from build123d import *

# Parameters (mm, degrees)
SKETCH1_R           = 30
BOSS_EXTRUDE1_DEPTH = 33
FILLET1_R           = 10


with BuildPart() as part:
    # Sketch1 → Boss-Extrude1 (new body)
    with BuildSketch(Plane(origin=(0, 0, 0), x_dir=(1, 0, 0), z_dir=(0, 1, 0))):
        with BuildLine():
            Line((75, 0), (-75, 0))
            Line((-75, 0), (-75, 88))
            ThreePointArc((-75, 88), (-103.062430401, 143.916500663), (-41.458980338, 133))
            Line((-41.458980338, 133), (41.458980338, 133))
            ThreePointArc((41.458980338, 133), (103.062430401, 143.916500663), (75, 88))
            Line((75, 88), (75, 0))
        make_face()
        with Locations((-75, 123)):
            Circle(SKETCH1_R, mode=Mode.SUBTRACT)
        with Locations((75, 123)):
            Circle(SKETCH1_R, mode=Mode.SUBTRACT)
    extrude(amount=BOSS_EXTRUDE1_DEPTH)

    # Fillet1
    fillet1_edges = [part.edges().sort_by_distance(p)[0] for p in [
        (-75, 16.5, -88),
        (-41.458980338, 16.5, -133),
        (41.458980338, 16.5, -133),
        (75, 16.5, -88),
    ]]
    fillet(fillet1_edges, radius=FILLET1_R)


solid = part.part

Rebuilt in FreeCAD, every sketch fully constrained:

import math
import FreeCAD as App
import Part
import Sketcher
Q = App.Units.Quantity


def edges_at(feature, points):
    """Names of the edges that pass closest to the given points."""
    edges = feature.Shape.Edges
    near = lambda p: min(range(len(edges)), key=lambda i: edges[i].distToShape(Part.Vertex(*p))[0])
    return sorted({f"Edge{near(p) + 1}" for p in points})

doc = App.newDocument("Part")
params = doc.addObject("Spreadsheet::Sheet", "Params")
for row, (alias, value) in enumerate([
    ("sketch1_diameter", "60 mm"),
    ("sketch1_radius", "35 mm"),
    ("sketch1_width", "150 mm"),
    ("sketch1_height", "88 mm"),
    ("pad1_length", "33 mm"),
    ("fillet_radius", "10 mm"),
], start=1):
    params.set(f"A{row}", alias)
    params.set(f"B{row}", "=" + value)
    params.setAlias(f"B{row}", alias)

body = doc.addObject("PartDesign::Body", "Body")

# Sketch on XZ plane
sketch1 = body.newObject("Sketcher::SketchObject", "Sketch")
sketch1.AttachmentSupport = (doc.getObject("XZ_Plane"), [""])
sketch1.MapMode = "FlatFace"
sketch1.addGeometry([
    Part.LineSegment(App.Vector(-75, 0, 0), App.Vector(75, 0, 0)),  # 0
    Part.LineSegment(App.Vector(75, 0, 0), App.Vector(75, -88, 0)),  # 1
    Part.ArcOfCircle(Part.Circle(App.Vector(75, -123, 0), App.Vector(0, 0, 1), 35), math.radians(-163), math.radians(90)),  # 2
    Part.LineSegment(App.Vector(41, -133, 0), App.Vector(-41, -133, 0)),  # 3
    Part.ArcOfCircle(Part.Circle(App.Vector(-75, -123, 0), App.Vector(0, 0, 1), 35), math.radians(90), math.radians(343)),  # 4
    Part.LineSegment(App.Vector(-75, -88, 0), App.Vector(-75, 0, 0)),  # 5
    Part.Circle(App.Vector(75, -123, 0), App.Vector(0, 0, 1), 30),  # 6
    Part.Circle(App.Vector(-75, -123, 0), App.Vector(0, 0, 1), 30),  # 7
], False)
sketch1.addConstraint([
    Sketcher.Constraint("Coincident", 0, 2, 1, 1),
    Sketcher.Constraint("Coincident", 1, 2, 2, 2),
    Sketcher.Constraint("Coincident", 2, 1, 3, 1),
    Sketcher.Constraint("Coincident", 3, 2, 4, 2),
    Sketcher.Constraint("Coincident", 4, 1, 5, 1),
    Sketcher.Constraint("Coincident", 5, 2, 0, 1),
    Sketcher.Constraint("Horizontal", 0),
    Sketcher.Constraint("Vertical", 1),
    Sketcher.Constraint("Horizontal", 3),
    Sketcher.Constraint("Vertical", 5),
    Sketcher.Constraint("Coincident", 6, 3, 2, 3),
    Sketcher.Constraint("Coincident", 7, 3, 4, 3),
    Sketcher.Constraint("Equal", 2, 4),
    Sketcher.Constraint("Equal", 6, 7),
    Sketcher.Constraint("Symmetric", 0, 2, 5, 2, -1, 1),
    Sketcher.Constraint("Symmetric", 2, 3, 4, 3, -2),
    Sketcher.Constraint("Vertical", 6, 3, 0, 2),
    Sketcher.Constraint("Diameter", 6, Q("60 mm")),
    Sketcher.Constraint("Radius", 2, Q("35 mm")),
    Sketcher.Constraint("DistanceX", 0, 1, 0, 2, Q("150 mm")),
    Sketcher.Constraint("DistanceY", 1, 2, 1, 1, Q("88 mm")),
    Sketcher.Constraint("DistanceY", 2, 1, -1, 1, Q("133 mm")),
])
sketch1.setExpression("Constraints[17]", "Params.sketch1_diameter")
sketch1.setExpression("Constraints[18]", "Params.sketch1_radius")
sketch1.setExpression("Constraints[19]", "Params.sketch1_width")
sketch1.setExpression("Constraints[20]", "Params.sketch1_height")
pad1 = body.newObject("PartDesign::Pad", "Pad")
pad1.Profile = sketch1
pad1.setExpression("Length", "Params.pad1_length")
pad1.Reversed = True
doc.recompute()

fillet = body.newObject("PartDesign::Fillet", "Fillet")
fillet.Base = (pad1, edges_at(pad1, [
    (-75, 16.5, -88),
    (-41.459, 16.5, -133),
    (41.459, 16.5, -133),
    (75, 16.5, -88),
]))
fillet.setExpression("Radius", "Params.fillet_radius")

doc.recompute()
